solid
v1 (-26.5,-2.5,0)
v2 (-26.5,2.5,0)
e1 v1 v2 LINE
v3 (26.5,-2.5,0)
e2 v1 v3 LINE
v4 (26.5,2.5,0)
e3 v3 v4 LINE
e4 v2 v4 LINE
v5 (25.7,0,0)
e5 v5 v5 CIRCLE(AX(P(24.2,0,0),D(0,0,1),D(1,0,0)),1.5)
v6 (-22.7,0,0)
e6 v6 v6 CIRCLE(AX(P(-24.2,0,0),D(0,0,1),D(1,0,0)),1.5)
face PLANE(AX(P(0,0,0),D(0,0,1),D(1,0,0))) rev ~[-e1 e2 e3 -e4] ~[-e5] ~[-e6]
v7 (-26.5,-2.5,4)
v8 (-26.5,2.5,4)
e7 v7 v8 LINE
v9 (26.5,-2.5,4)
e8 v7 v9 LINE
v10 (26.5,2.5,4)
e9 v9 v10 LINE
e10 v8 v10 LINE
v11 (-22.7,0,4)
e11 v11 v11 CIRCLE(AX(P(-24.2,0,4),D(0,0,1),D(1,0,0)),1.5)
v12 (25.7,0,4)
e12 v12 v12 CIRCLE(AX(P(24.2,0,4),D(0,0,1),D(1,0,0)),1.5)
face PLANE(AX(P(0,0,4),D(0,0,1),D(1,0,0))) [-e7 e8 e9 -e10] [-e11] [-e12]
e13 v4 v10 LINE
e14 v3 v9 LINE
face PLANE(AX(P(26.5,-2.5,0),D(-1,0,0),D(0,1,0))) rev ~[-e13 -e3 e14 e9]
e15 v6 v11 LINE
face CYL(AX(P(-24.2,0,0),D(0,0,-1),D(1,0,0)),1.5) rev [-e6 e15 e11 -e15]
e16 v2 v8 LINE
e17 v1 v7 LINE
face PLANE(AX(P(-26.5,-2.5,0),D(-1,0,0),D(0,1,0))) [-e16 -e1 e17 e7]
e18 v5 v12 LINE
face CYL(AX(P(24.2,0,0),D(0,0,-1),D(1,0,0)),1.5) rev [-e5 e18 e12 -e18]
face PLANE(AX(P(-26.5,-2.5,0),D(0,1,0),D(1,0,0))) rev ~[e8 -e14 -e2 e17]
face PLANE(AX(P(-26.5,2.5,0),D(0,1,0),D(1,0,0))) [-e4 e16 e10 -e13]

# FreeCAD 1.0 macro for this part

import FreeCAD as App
import Part
import Sketcher

V = App.Vector

doc = App.newDocument("Part")
body = doc.addObject("PartDesign::Body", "Body")

sketch1 = body.newObject("Sketcher::SketchObject", "Sketch")
sketch1.AttachmentSupport = (doc.getObject("XY_Plane"), [""])
sketch1.MapMode = "FlatFace"
sketch1.addGeometry([
    Part.LineSegment(V(-26.5, 2.5, 0), V(-26.5, -2.5, 0)),
    Part.LineSegment(V(-26.5, -2.5, 0), V(26.5, -2.5, 0)),
    Part.LineSegment(V(26.5, -2.5, 0), V(26.5, 2.5, 0)),
    Part.LineSegment(V(26.5, 2.5, 0), V(-26.5, 2.5, 0)),
    Part.Circle(V(-24.2, 0, 0), V(0, 0, 1), 1.5),
    Part.Circle(V(24.2, 0, 0), V(0, 0, 1), 1.5),
], False)
sketch1.addConstraint([
    Sketcher.Constraint("Coincident", 0, 2, 1, 1),
    Sketcher.Constraint("Coincident", 1, 2, 2, 1),
    Sketcher.Constraint("Coincident", 2, 2, 3, 1),
    Sketcher.Constraint("Coincident", 3, 2, 0, 1),
    Sketcher.Constraint("Vertical", 0),
    Sketcher.Constraint("Horizontal", 1),
    Sketcher.Constraint("Vertical", 2),
    Sketcher.Constraint("Horizontal", 3),
    Sketcher.Constraint("Equal", 4, 5),
    Sketcher.Constraint("Symmetric", 4, 3, 5, 3, -1, 1),
    Sketcher.Constraint("Symmetric", 0, 2, 2, 2, -1, 1),
    Sketcher.Constraint("PointOnObject", 4, 3, -1),
    Sketcher.Constraint("Diameter", 4, 3.0),
    Sketcher.Constraint("DistanceX", 1, 1, 1, 2, 53.0),
    Sketcher.Constraint("DistanceY", 0, 2, 0, 1, 5.0),
    Sketcher.Constraint("DistanceX", 4, 3, -1, 1, 24.2),
])
pad1 = body.newObject("PartDesign::Pad", "Pad")
pad1.Profile = sketch1
pad1.Length = 4

doc.recompute()
